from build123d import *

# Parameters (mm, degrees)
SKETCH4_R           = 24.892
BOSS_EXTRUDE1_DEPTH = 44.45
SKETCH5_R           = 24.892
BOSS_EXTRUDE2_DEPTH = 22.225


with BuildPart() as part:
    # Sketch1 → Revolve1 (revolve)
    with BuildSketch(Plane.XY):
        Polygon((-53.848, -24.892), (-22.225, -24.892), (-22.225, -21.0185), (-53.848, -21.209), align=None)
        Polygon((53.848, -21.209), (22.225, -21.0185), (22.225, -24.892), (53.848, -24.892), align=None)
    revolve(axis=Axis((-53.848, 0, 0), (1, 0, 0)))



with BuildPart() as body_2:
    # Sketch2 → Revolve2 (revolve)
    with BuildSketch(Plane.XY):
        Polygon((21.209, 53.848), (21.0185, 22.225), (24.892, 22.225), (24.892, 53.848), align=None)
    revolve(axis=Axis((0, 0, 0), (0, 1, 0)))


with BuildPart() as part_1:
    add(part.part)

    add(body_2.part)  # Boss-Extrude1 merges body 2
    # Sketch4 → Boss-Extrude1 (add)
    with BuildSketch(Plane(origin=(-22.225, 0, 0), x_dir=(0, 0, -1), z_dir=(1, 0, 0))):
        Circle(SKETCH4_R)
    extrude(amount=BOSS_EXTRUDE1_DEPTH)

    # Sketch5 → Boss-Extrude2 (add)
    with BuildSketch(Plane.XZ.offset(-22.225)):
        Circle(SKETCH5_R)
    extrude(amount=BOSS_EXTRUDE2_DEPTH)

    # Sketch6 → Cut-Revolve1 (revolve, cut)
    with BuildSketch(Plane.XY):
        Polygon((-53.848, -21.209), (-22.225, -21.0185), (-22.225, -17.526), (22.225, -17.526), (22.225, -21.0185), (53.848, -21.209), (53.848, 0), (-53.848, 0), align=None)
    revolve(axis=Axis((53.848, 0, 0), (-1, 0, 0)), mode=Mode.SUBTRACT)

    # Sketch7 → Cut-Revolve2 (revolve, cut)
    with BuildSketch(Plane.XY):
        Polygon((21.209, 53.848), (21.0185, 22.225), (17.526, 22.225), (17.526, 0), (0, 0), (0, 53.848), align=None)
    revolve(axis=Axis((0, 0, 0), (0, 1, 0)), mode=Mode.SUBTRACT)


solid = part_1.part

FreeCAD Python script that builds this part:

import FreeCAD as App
import Part
import Sketcher

V = App.Vector
Q = App.Units.Quantity

doc = App.newDocument("Part")
body = doc.addObject("PartDesign::Body", "Body")
body.AllowCompound = True

# Sketch on XY plane
sketch1 = body.newObject("Sketcher::SketchObject", "Sketch")
sketch1.AttachmentSupport = (doc.getObject("XY_Plane"), [""])
sketch1.MapMode = "FlatFace"
sketch1.addGeometry(Part.LineSegment(V(-53.848, -24.892, 0), V(-22.225, -24.892, 0)), False)
sketch1.addGeometry(Part.LineSegment(V(-22.225, -24.892, 0), V(-22.225, -21.0185, 0)), False)
sketch1.addGeometry(Part.LineSegment(V(-22.225, -21.0185, 0), V(-53.848, -21.209, 0)), False)
sketch1.addGeometry(Part.LineSegment(V(-53.848, -21.209, 0), V(-53.848, -24.892, 0)), False)
sketch1.addGeometry(Part.LineSegment(V(53.848, -21.209, 0), V(22.225, -21.0185, 0)), False)
sketch1.addGeometry(Part.LineSegment(V(22.225, -21.0185, 0), V(22.225, -24.892, 0)), False)
sketch1.addGeometry(Part.LineSegment(V(22.225, -24.892, 0), V(53.848, -24.892, 0)), False)
sketch1.addGeometry(Part.LineSegment(V(53.848, -24.892, 0), V(53.848, -21.209, 0)), False)
sketch1.addConstraint(Sketcher.Constraint("Coincident", 0, 2, 1, 1))
sketch1.addConstraint(Sketcher.Constraint("Coincident", 1, 2, 2, 1))
sketch1.addConstraint(Sketcher.Constraint("Coincident", 2, 2, 3, 1))
sketch1.addConstraint(Sketcher.Constraint("Coincident", 3, 2, 0, 1))
sketch1.addConstraint(Sketcher.Constraint("Coincident", 4, 2, 5, 1))
sketch1.addConstraint(Sketcher.Constraint("Coincident", 5, 2, 6, 1))
sketch1.addConstraint(Sketcher.Constraint("Coincident", 6, 2, 7, 1))
sketch1.addConstraint(Sketcher.Constraint("Coincident", 7, 2, 4, 1))
sketch1.addConstraint(Sketcher.Constraint("Horizontal", 0))
sketch1.addConstraint(Sketcher.Constraint("Vertical", 1))
sketch1.addConstraint(Sketcher.Constraint("Vertical", 3))
sketch1.addConstraint(Sketcher.Constraint("Vertical", 5))
sketch1.addConstraint(Sketcher.Constraint("Horizontal", 6))
sketch1.addConstraint(Sketcher.Constraint("Vertical", 7))
sketch1.addConstraint(Sketcher.Constraint("Symmetric", 1, 2, 4, 2, -2))
sketch1.addConstraint(Sketcher.Constraint("Symmetric", 3, 2, 6, 2, -2))
sketch1.addConstraint(Sketcher.Constraint("Horizontal", 2, 2, 7, 2))
sketch1.addConstraint(Sketcher.Constraint("DistanceX", 0, 1, 0, 2, Q("1.245 in")))
sketch1.addConstraint(Sketcher.Constraint("DistanceY", 3, 2, 3, 1, Q("0.145 in")))
sketch1.addConstraint(Sketcher.Constraint("DistanceY", 0, 2, -1, 1, Q("0.98 in")))
sketch1.addConstraint(Sketcher.Constraint("DistanceX", 2, 2, -1, 1, Q("2.12 in")))
sketch1.addConstraint(Sketcher.Constraint("DistanceY", 1, 1, 1, 2, Q("0.1525 in")))
revolution = body.newObject("PartDesign::Revolution", "Revolution")
revolution.Profile = sketch1
revolution.ReferenceAxis = (sketch1, ["H_Axis"])
revolution.Angle = 360
body2 = doc.addObject("PartDesign::Body", "Body001")

# Sketch on XY plane
sketch2 = body2.newObject("Sketcher::SketchObject", "Sketch001")
sketch2.AttachmentSupport = (doc.getObject("XY_Plane001"), [""])
sketch2.MapMode = "FlatFace"
sketch2.addGeometry(Part.LineSegment(V(21.209, 53.848, 0), V(21.0185, 22.225, 0)), False)
sketch2.addGeometry(Part.LineSegment(V(21.0185, 22.225, 0), V(24.892, 22.225, 0)), False)
sketch2.addGeometry(Part.LineSegment(V(24.892, 22.225, 0), V(24.892, 53.848, 0)), False)
sketch2.addGeometry(Part.LineSegment(V(24.892, 53.848, 0), V(21.209, 53.848, 0)), False)
sketch2.addConstraint(Sketcher.Constraint("Coincident", 0, 2, 1, 1))
sketch2.addConstraint(Sketcher.Constraint("Coincident", 1, 2, 2, 1))
sketch2.addConstraint(Sketcher.Constraint("Coincident", 2, 2, 3, 1))
sketch2.addConstraint(Sketcher.Constraint("Coincident", 3, 2, 0, 1))
sketch2.addConstraint(Sketcher.Constraint("Horizontal", 1))
sketch2.addConstraint(Sketcher.Constraint("Vertical", 2))
sketch2.addConstraint(Sketcher.Constraint("Horizontal", 3))
sketch2.addConstraint(Sketcher.Constraint("DistanceX", 3, 2, 3, 1, Q("0.145 in")))
sketch2.addConstraint(Sketcher.Constraint("DistanceY", 2, 1, 2, 2, Q("1.245 in")))
sketch2.addConstraint(Sketcher.Constraint("DistanceX", -1, 1, 1, 2, Q("0.98 in")))
sketch2.addConstraint(Sketcher.Constraint("DistanceY", -1, 1, 2, 2, Q("2.12 in")))
sketch2.addConstraint(Sketcher.Constraint("DistanceX", 1, 1, 1, 2, Q("0.1525 in")))
revolution2 = body2.newObject("PartDesign::Revolution", "Revolution001")
revolution2.Profile = sketch2
revolution2.ReferenceAxis = (sketch2, ["V_Axis"])
revolution2.Angle = 360
doc.recompute()

boolean = body.newObject("PartDesign::Boolean", "Boolean")
boolean.Type = "Fuse"
boolean.addObjects([body2])

# Sketch on YZ plane
sketch3 = body.newObject("Sketcher::SketchObject", "Sketch002")
sketch3.AttachmentSupport = (doc.getObject("YZ_Plane"), [""])
sketch3.MapMode = "FlatFace"
sketch3.AttachmentOffset = App.Placement(V(0, 0, -0.875 * 25.4), App.Rotation())
sketch3.addGeometry(Part.Circle(V(0, 0, 0), V(0, 0, 1), 24.892), False)
sketch3.addConstraint(Sketcher.Constraint("Coincident", 0, 3, -1, 1))
sketch3.addConstraint(Sketcher.Constraint("Diameter", 0, Q("1.96 in")))
pad1 = body.newObject("PartDesign::Pad", "Pad")
pad1.Profile = sketch3
pad1.Length = Q("1.75 in")

# Sketch on XZ plane
sketch4 = body.newObject("Sketcher::SketchObject", "Sketch003")
sketch4.AttachmentSupport = (doc.getObject("XZ_Plane"), [""])
sketch4.MapMode = "FlatFace"
sketch4.AttachmentOffset = App.Placement(V(0, 0, -0.875 * 25.4), App.Rotation())
sketch4.addGeometry(Part.Circle(V(0, 0, 0), V(0, 0, 1), 24.892), False)
sketch4.addConstraint(Sketcher.Constraint("Coincident", 0, 3, -1, 1))
sketch4.addConstraint(Sketcher.Constraint("Diameter", 0, Q("1.96 in")))
pad2 = body.newObject("PartDesign::Pad", "Pad001")
pad2.Profile = sketch4
pad2.Length = Q("0.875 in")

# Sketch on XY plane
sketch5 = body.newObject("Sketcher::SketchObject", "Sketch004")
sketch5.AttachmentSupport = (doc.getObject("XY_Plane"), [""])
sketch5.MapMode = "FlatFace"
sketch5.addGeometry(Part.LineSegment(V(-53.848, -21.209, 0), V(-22.225, -21.0185, 0)), False)
sketch5.addGeometry(Part.LineSegment(V(-22.225, -21.0185, 0), V(-22.225, -17.526, 0)), False)
sketch5.addGeometry(Part.LineSegment(V(-22.225, -17.526, 0), V(22.225, -17.526, 0)), False)
sketch5.addGeometry(Part.LineSegment(V(22.225, -17.526, 0), V(22.225, -21.0185, 0)), False)
sketch5.addGeometry(Part.LineSegment(V(22.225, -21.0185, 0), V(53.848, -21.209, 0)), False)
sketch5.addGeometry(Part.LineSegment(V(53.848, -21.209, 0), V(53.848, 0, 0)), False)
sketch5.addGeometry(Part.LineSegment(V(53.848, 0, 0), V(-53.848, 0, 0)), False)
sketch5.addGeometry(Part.LineSegment(V(-53.848, 0, 0), V(-53.848, -21.209, 0)), False)
sketch5.addConstraint(Sketcher.Constraint("Coincident", 0, 2, 1, 1))
sketch5.addConstraint(Sketcher.Constraint("Coincident", 1, 2, 2, 1))
sketch5.addConstraint(Sketcher.Constraint("Coincident", 2, 2, 3, 1))
sketch5.addConstraint(Sketcher.Constraint("Coincident", 3, 2, 4, 1))
sketch5.addConstraint(Sketcher.Constraint("Coincident", 4, 2, 5, 1))
sketch5.addConstraint(Sketcher.Constraint("Coincident", 5, 2, 6, 1))
sketch5.addConstraint(Sketcher.Constraint("Coincident", 6, 2, 7, 1))
sketch5.addConstraint(Sketcher.Constraint("Coincident", 7, 2, 0, 1))
sketch5.addConstraint(Sketcher.Constraint("Vertical", 1))
sketch5.addConstraint(Sketcher.Constraint("Horizontal", 2))
sketch5.addConstraint(Sketcher.Constraint("Vertical", 3))
sketch5.addConstraint(Sketcher.Constraint("Vertical", 5))
sketch5.addConstraint(Sketcher.Constraint("Horizontal", 6))
sketch5.addConstraint(Sketcher.Constraint("Vertical", 7))
sketch5.addConstraint(Sketcher.Constraint("Symmetric", 5, 2, 6, 2, -1, 1))
sketch5.addConstraint(Sketcher.Constraint("Symmetric", 0, 2, 3, 2, -2))
sketch5.addConstraint(Sketcher.Constraint("Horizontal", 4, 2, 7, 2))
sketch5.addConstraint(Sketcher.Constraint("DistanceX", 2, 1, 2, 2, Q("1.75 in")))
sketch5.addConstraint(Sketcher.Constraint("DistanceX", 6, 2, 6, 1, Q("4.24 in")))
sketch5.addConstraint(Sketcher.Constraint("DistanceY", 5, 1, 5, 2, Q("0.835 in")))
sketch5.addConstraint(Sketcher.Constraint("DistanceY", 1, 2, -1, 1, Q("0.69 in")))
sketch5.addConstraint(Sketcher.Constraint("DistanceY", 1, 1, 1, 2, Q("0.1375 in")))
groove = body.newObject("PartDesign::Groove", "Groove")
groove.Profile = sketch5
groove.ReferenceAxis = (sketch5, ["H_Axis"])
groove.Angle = 360

# Sketch on XY plane
sketch6 = body.newObject("Sketcher::SketchObject", "Sketch005")
sketch6.AttachmentSupport = (doc.getObject("XY_Plane"), [""])
sketch6.MapMode = "FlatFace"
sketch6.addGeometry(Part.LineSegment(V(21.0185, 22.225, 0), V(21.209, 53.848, 0)), False)
sketch6.addGeometry(Part.LineSegment(V(21.209, 53.848, 0), V(0, 53.848, 0)), False)
sketch6.addGeometry(Part.LineSegment(V(0, 53.848, 0), V(0, 0, 0)), False)
sketch6.addGeometry(Part.LineSegment(V(0, 0, 0), V(17.526, 0, 0)), False)
sketch6.addGeometry(Part.LineSegment(V(17.526, 0, 0), V(17.526, 22.225, 0)), False)
sketch6.addGeometry(Part.LineSegment(V(17.526, 22.225, 0), V(21.0185, 22.225, 0)), False)
sketch6.addConstraint(Sketcher.Constraint("Coincident", 0, 2, 1, 1))
sketch6.addConstraint(Sketcher.Constraint("Coincident", 1, 2, 2, 1))
sketch6.addConstraint(Sketcher.Constraint("Coincident", 2, 2, 3, 1))
sketch6.addConstraint(Sketcher.Constraint("Coincident", 3, 2, 4, 1))
sketch6.addConstraint(Sketcher.Constraint("Coincident", 4, 2, 5, 1))
sketch6.addConstraint(Sketcher.Constraint("Coincident", 5, 2, 0, 1))
sketch6.addConstraint(Sketcher.Constraint("Horizontal", 1))
sketch6.addConstraint(Sketcher.Constraint("Vertical", 2))
sketch6.addConstraint(Sketcher.Constraint("Horizontal", 3))
sketch6.addConstraint(Sketcher.Constraint("Vertical", 4))
sketch6.addConstraint(Sketcher.Constraint("Horizontal", 5))
sketch6.addConstraint(Sketcher.Constraint("Coincident", 2, 2, -1, 1))
sketch6.addConstraint(Sketcher.Constraint("DistanceX", 3, 1, 3, 2, Q("0.69 in")))
sketch6.addConstraint(Sketcher.Constraint("DistanceY", 2, 2, 2, 1, Q("2.12 in")))
sketch6.addConstraint(Sketcher.Constraint("DistanceX", 1, 2, 1, 1, Q("0.835 in")))
sketch6.addConstraint(Sketcher.Constraint("DistanceY", 4, 1, 4, 2, Q("0.875 in")))
sketch6.addConstraint(Sketcher.Constraint("DistanceX", 5, 1, 5, 2, Q("0.1375 in")))
groove2 = body.newObject("PartDesign::Groove", "Groove001")
groove2.Profile = sketch6
groove2.ReferenceAxis = (sketch6, ["V_Axis"])
groove2.Angle = 360

doc.recompute()
